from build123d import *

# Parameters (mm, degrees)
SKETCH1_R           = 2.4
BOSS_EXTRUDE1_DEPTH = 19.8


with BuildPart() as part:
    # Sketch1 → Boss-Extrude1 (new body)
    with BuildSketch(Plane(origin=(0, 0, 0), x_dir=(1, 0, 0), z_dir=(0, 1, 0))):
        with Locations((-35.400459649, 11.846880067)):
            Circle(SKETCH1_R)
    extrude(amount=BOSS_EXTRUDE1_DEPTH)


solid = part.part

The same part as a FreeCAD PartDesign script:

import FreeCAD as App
import Part
import Sketcher

doc = App.newDocument("Part")
body = doc.addObject("PartDesign::Body", "Body")

sketch1 = body.newObject("Sketcher::SketchObject", "Sketch")
sketch1.AttachmentSupport = (doc.getObject("XZ_Plane"), [""])
sketch1.MapMode = "FlatFace"
sketch1.addGeometry(Part.Circle(App.Vector(-35.4, -11.8, 0), App.Vector(0, 0, 1), 2.4), False)
sketch1.addConstraint([
    Sketcher.Constraint("Diameter", 0, 4.8),
    Sketcher.Constraint("DistanceX", 0, 3, -1, 1, 35.40046),
    Sketcher.Constraint("DistanceY", 0, 3, -1, 1, 11.84688),
])
pad1 = body.newObject("PartDesign::Pad", "Pad")
pad1.Profile = sketch1
pad1.Length = 19.8
pad1.Reversed = True

doc.recompute()
